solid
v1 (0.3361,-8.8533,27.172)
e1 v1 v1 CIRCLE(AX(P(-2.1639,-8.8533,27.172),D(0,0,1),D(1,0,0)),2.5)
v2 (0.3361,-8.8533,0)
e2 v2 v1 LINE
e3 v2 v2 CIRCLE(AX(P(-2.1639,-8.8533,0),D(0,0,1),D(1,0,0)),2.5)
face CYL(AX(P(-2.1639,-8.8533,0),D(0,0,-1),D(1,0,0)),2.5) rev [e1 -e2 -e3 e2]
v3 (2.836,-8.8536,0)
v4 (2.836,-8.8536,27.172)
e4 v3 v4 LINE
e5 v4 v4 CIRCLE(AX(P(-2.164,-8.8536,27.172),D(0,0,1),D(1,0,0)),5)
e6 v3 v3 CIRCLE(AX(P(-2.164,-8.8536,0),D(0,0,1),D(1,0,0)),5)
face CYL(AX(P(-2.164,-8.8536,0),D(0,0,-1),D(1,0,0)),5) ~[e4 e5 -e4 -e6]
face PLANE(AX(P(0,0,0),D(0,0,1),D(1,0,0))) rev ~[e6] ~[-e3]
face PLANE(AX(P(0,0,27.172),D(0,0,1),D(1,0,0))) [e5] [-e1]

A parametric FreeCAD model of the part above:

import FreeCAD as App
import Part
import Sketcher
Q = App.Units.Quantity

doc = App.newDocument("Part")
params = doc.addObject("Spreadsheet::Sheet", "Params")
for row, (alias, value) in enumerate([
    ("sketch1_diameter", "10 mm"),
    ("sketch1_diameter2", "5 mm"),
    ("pad1_length", "27.172 mm"),
], start=1):
    params.set(f"A{row}", alias)
    params.set(f"B{row}", "=" + value)
    params.setAlias(f"B{row}", alias)

body = doc.addObject("PartDesign::Body", "Body")

# Sketch on XY plane
sketch1 = body.newObject("Sketcher::SketchObject", "Sketch")
sketch1.AttachmentSupport = (doc.getObject("XY_Plane"), [""])
sketch1.MapMode = "FlatFace"
sketch1.addGeometry([
    Part.Circle(App.Vector(-2.164, -8.8536, 0), App.Vector(0, 0, 1), 5),
    Part.Circle(App.Vector(-2.1639, -8.8533, 0), App.Vector(0, 0, 1), 2.5),
], False)
sketch1.addConstraint([
    Sketcher.Constraint("Coincident", 1, 3, 0, 3),
    Sketcher.Constraint("Diameter", 0, Q("10 mm")),
    Sketcher.Constraint("Diameter", 1, Q("5 mm")),
    Sketcher.Constraint("DistanceX", 0, 3, -1, 1, Q("2.164 mm")),
    Sketcher.Constraint("DistanceY", 0, 3, -1, 1, Q("8.8536 mm")),
])
sketch1.setExpression("Constraints[1]", "Params.sketch1_diameter")
sketch1.setExpression("Constraints[2]", "Params.sketch1_diameter2")
pad1 = body.newObject("PartDesign::Pad", "Pad")
pad1.Profile = sketch1
pad1.setExpression("Length", "Params.pad1_length")

doc.recompute()
